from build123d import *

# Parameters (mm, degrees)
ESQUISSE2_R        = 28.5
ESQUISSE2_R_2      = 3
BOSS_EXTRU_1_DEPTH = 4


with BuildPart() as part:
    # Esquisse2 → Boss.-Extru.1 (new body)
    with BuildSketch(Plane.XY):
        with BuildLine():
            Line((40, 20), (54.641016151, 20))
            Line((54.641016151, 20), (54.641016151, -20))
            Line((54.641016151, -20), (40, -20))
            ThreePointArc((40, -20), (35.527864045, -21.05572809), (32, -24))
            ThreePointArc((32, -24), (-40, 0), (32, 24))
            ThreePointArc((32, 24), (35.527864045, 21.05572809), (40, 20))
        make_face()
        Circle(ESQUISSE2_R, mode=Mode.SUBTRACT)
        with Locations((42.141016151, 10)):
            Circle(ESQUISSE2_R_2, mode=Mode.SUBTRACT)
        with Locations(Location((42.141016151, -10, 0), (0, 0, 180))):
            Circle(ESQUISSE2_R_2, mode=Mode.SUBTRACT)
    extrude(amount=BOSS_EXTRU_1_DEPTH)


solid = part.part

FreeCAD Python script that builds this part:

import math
import FreeCAD as App
import Part
import Sketcher

doc = App.newDocument("Part")
body = doc.addObject("PartDesign::Body", "Body")

sketch1 = body.newObject("Sketcher::SketchObject", "Sketch")
sketch1.AttachmentSupport = (doc.getObject("XY_Plane"), [""])
sketch1.MapMode = "FlatFace"
sketch1.addGeometry(Part.LineSegment(App.Vector(54.6, 20, 0), App.Vector(40, 20, 0)), False)
sketch1.addGeometry(Part.ArcOfCircle(Part.Circle(App.Vector(40, 30, 0), App.Vector(0, 0, 1), 10), math.radians(-143), math.radians(-90)), False)
sketch1.addGeometry(Part.ArcOfCircle(Part.Circle(App.Vector(0, 0, 0), App.Vector(0, 0, 1), 40), math.radians(37), math.radians(323)), False)
sketch1.addGeometry(Part.ArcOfCircle(Part.Circle(App.Vector(40, -30, 0), App.Vector(0, 0, 1), 10), math.radians(90), math.radians(143)), False)
sketch1.addGeometry(Part.LineSegment(App.Vector(40, -20, 0), App.Vector(54.6, -20, 0)), False)
sketch1.addGeometry(Part.LineSegment(App.Vector(54.6, -20, 0), App.Vector(54.6, 20, 0)), False)
sketch1.addGeometry(Part.Circle(App.Vector(42.1, -10, 0), App.Vector(0, 0, 1), 3), False)
sketch1.addGeometry(Part.Circle(App.Vector(42.1, 10, 0), App.Vector(0, 0, 1), 3), False)
sketch1.addGeometry(Part.Circle(App.Vector(0, 0, 0), App.Vector(0, 0, 1), 28.5), False)
sketch1.addConstraint(Sketcher.Constraint("Tangent", 0, 2, 1, 2))
sketch1.addConstraint(Sketcher.Constraint("Tangent", 1, 1, 2, 1))
sketch1.addConstraint(Sketcher.Constraint("Tangent", 2, 2, 3, 2))
sketch1.addConstraint(Sketcher.Constraint("Tangent", 3, 1, 4, 1))
sketch1.addConstraint(Sketcher.Constraint("Coincident", 4, 2, 5, 1))
sketch1.addConstraint(Sketcher.Constraint("Coincident", 5, 2, 0, 1))
sketch1.addConstraint(Sketcher.Constraint("Horizontal", 0))
sketch1.addConstraint(Sketcher.Constraint("Horizontal", 4))
sketch1.addConstraint(Sketcher.Constraint("Vertical", 5))
sketch1.addConstraint(Sketcher.Constraint("Coincident", 2, 3, -1, 1))
sketch1.addConstraint(Sketcher.Constraint("Coincident", 8, 3, -1, 1))
sketch1.addConstraint(Sketcher.Constraint("Equal", 1, 3))
sketch1.addConstraint(Sketcher.Constraint("Equal", 6, 7))
sketch1.addConstraint(Sketcher.Constraint("Symmetric", 6, 3, 7, 3, -1))
sketch1.addConstraint(Sketcher.Constraint("Vertical", 1, 3, 3, 3))
sketch1.addConstraint(Sketcher.Constraint("Diameter", 6, 6.0))
sketch1.addConstraint(Sketcher.Constraint("Diameter", 8, 57.0))
sketch1.addConstraint(Sketcher.Constraint("Radius", 1, 10.0))
sketch1.addConstraint(Sketcher.Constraint("Radius", 2, 40.0))
sketch1.addConstraint(Sketcher.Constraint("DistanceY", 5, 1, 5, 2, 40.0))
sketch1.addConstraint(Sketcher.Constraint("DistanceY", 6, 3, -1, 1, 10.0))
sketch1.addConstraint(Sketcher.Constraint("DistanceX", 6, 3, 4, 2, 12.5))
sketch1.addConstraint(Sketcher.Constraint("DistanceX", 0, 2, 0, 1, 14.641016))
pad1 = body.newObject("PartDesign::Pad", "Pad")
pad1.Profile = sketch1
pad1.Length = 4

doc.recompute()
